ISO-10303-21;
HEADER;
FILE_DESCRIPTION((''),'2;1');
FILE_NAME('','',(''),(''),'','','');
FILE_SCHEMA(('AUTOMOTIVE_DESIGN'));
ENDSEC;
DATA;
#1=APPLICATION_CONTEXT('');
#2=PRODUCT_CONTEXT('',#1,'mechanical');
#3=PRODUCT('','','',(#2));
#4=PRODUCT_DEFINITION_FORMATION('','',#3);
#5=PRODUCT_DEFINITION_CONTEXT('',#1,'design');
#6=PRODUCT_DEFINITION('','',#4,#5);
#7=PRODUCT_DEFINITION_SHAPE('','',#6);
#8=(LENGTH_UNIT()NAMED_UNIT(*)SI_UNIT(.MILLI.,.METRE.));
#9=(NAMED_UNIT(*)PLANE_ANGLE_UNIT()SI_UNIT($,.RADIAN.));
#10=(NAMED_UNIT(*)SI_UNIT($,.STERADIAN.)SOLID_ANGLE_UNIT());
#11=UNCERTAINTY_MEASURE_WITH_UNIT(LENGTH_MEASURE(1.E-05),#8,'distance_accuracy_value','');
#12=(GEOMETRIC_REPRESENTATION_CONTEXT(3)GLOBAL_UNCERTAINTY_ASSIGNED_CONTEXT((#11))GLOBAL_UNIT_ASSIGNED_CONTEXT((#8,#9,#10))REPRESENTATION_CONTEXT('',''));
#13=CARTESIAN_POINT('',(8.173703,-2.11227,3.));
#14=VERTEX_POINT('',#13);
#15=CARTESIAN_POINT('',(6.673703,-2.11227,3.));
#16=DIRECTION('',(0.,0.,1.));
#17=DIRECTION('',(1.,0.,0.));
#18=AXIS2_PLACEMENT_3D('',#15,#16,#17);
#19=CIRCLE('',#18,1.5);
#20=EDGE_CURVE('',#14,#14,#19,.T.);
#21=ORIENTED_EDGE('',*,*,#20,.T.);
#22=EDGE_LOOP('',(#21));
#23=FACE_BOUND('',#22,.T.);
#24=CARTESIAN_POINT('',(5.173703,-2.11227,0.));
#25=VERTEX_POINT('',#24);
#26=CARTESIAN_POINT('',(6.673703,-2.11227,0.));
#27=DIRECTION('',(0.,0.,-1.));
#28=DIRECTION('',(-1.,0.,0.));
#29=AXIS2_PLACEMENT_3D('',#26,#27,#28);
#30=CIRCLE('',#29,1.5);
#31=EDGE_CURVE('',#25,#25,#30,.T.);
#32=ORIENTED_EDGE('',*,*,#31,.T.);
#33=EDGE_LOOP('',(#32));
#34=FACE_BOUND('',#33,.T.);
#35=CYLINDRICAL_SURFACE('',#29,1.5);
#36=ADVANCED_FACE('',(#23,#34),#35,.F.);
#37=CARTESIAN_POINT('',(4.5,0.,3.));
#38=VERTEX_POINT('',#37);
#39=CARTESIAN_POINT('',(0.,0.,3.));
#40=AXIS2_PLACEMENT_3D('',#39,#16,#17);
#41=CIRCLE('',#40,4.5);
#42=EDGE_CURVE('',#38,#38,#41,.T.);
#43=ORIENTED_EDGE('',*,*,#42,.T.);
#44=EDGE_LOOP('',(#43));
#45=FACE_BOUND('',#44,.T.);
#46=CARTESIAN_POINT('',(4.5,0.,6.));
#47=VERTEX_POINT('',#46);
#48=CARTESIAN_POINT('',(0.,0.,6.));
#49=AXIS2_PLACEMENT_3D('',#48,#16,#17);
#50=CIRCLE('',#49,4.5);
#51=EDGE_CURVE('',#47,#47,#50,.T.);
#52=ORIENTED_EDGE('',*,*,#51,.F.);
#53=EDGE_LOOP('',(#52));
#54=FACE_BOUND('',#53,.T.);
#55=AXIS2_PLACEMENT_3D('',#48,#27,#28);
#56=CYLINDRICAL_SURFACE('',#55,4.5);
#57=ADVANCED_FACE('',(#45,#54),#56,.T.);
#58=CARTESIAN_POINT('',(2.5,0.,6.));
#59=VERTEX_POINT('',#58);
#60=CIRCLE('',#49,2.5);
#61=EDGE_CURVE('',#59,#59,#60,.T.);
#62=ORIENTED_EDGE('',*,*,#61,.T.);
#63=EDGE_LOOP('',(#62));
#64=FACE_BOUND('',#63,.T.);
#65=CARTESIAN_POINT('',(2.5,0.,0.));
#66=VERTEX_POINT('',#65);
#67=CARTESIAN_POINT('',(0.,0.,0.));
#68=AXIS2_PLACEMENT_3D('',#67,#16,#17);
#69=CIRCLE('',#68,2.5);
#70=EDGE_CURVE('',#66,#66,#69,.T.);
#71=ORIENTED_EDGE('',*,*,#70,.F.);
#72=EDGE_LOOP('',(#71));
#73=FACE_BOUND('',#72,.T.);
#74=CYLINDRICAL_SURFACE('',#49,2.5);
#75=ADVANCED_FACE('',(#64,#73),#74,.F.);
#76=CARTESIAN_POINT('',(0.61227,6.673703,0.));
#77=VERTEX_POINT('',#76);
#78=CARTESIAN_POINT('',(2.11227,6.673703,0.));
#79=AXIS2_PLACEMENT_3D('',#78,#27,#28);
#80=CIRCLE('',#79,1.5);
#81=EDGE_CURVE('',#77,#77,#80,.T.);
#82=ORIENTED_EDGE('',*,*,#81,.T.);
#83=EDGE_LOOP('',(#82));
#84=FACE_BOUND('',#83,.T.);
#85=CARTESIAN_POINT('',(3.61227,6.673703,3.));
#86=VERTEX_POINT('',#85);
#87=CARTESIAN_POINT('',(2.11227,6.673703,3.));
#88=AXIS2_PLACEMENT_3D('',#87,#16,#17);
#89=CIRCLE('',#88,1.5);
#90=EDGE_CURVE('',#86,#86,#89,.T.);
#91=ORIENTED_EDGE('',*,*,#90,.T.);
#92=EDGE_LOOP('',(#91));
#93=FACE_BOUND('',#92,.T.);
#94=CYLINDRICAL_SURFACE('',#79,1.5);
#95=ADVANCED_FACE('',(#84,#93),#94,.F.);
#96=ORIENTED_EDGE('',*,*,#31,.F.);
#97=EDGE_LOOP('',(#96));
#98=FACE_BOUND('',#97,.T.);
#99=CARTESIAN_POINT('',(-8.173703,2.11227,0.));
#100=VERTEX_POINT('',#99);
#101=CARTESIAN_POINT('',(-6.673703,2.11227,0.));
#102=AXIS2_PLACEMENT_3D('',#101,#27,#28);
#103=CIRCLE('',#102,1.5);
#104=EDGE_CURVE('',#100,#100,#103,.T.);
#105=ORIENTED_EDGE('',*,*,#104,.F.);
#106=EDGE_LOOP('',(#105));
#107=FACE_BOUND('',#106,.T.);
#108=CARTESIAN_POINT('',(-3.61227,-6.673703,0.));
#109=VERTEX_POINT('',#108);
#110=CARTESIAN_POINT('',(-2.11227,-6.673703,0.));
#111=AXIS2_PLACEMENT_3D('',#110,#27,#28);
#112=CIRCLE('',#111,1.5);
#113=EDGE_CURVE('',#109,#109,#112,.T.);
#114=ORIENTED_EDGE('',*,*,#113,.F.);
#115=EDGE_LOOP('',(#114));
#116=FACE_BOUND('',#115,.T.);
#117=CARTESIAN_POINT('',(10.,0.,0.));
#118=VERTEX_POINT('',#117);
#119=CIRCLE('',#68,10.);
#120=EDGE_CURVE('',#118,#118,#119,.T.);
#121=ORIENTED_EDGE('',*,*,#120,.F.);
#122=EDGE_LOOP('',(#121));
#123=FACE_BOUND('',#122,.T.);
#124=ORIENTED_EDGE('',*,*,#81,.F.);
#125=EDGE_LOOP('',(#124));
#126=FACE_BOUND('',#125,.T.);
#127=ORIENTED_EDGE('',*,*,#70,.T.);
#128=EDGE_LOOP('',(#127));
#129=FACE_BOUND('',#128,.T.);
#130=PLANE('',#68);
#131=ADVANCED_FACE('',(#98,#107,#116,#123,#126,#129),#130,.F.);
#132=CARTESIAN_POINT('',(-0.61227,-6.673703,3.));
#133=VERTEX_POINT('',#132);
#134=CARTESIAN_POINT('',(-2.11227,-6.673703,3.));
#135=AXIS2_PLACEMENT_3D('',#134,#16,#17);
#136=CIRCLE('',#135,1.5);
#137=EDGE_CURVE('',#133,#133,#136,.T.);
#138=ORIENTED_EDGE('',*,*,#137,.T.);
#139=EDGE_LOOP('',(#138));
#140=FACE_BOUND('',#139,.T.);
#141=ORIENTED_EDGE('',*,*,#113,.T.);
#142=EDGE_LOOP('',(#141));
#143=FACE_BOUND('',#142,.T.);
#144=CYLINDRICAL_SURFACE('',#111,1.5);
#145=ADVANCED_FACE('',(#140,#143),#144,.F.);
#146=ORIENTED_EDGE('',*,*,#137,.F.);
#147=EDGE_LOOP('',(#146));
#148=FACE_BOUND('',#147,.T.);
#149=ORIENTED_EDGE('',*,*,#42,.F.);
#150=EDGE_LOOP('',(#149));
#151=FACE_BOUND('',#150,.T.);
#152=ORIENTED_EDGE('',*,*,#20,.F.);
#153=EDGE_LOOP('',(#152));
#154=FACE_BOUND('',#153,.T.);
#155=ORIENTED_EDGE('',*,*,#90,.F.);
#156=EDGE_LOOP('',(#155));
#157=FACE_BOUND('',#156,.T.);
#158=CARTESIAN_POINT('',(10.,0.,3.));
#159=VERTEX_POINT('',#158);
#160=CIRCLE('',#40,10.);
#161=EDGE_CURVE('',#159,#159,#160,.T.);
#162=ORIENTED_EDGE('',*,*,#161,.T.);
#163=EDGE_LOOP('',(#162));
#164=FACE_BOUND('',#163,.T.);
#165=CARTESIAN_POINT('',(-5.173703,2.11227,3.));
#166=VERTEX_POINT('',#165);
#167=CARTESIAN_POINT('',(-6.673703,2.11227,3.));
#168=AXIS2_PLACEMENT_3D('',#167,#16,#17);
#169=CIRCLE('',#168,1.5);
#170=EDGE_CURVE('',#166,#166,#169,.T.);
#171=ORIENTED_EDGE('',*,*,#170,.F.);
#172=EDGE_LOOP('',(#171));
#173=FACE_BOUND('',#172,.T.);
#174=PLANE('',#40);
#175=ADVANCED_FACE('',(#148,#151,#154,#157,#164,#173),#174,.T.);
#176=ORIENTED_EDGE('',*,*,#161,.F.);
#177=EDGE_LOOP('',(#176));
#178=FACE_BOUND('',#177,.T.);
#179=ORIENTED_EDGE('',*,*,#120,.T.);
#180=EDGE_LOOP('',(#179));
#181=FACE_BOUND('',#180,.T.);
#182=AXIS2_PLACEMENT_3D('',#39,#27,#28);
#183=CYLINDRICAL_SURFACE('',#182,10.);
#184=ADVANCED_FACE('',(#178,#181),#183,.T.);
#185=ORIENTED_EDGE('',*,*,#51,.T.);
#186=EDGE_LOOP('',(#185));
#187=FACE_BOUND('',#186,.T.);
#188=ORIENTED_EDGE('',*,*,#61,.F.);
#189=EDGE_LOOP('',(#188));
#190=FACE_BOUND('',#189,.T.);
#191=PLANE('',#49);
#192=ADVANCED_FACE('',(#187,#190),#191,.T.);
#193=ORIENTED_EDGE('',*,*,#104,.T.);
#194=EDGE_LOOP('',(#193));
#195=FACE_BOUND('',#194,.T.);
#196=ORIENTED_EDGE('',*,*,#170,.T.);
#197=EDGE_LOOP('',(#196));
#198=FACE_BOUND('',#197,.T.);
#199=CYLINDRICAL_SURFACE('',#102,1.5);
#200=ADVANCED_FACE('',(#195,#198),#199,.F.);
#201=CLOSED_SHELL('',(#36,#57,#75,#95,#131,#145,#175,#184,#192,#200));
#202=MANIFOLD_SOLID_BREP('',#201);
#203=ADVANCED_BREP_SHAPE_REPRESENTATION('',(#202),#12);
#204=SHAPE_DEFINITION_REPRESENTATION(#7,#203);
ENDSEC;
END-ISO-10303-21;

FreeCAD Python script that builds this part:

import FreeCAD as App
import Part
import Sketcher
Q = App.Units.Quantity

doc = App.newDocument("Part")
params = doc.addObject("Spreadsheet::Sheet", "Params")
for row, (alias, value) in enumerate([
    ("sketch1_diameter", "20 mm"),
    ("pad1_length", "3 mm"),
    ("sketch2_diameter", "9 mm"),
    ("pad2_length", "3 mm"),
    ("sketch3_diameter", "3 mm"),
    ("hole_diameter", "3 mm"),
    ("sketch4_diameter", "5 mm"),
    ("hole2_diameter", "5 mm"),
], start=1):
    params.set(f"A{row}", alias)
    params.set(f"B{row}", "=" + value)
    params.setAlias(f"B{row}", alias)

body = doc.addObject("PartDesign::Body", "Body")

# Sketch on XY plane
sketch1 = body.newObject("Sketcher::SketchObject", "Sketch")
sketch1.AttachmentSupport = (doc.getObject("XY_Plane"), [""])
sketch1.MapMode = "FlatFace"
sketch1.addGeometry(Part.Circle(App.Vector(0, 0, 0), App.Vector(0, 0, 1), 10), False)
sketch1.addConstraint([
    Sketcher.Constraint("Coincident", 0, 3, -1, 1),
    Sketcher.Constraint("Diameter", 0, Q("20 mm")),
])
sketch1.setExpression("Constraints[1]", "Params.sketch1_diameter")
pad1 = body.newObject("PartDesign::Pad", "Pad")
pad1.Profile = sketch1
pad1.setExpression("Length", "Params.pad1_length")

# Sketch on XY plane
sketch2 = body.newObject("Sketcher::SketchObject", "Sketch001")
sketch2.AttachmentSupport = (doc.getObject("XY_Plane"), [""])
sketch2.MapMode = "FlatFace"
sketch2.AttachmentOffset = App.Placement(App.Vector(0, 0, 3), App.Rotation())
sketch2.addGeometry(Part.Circle(App.Vector(0, 0, 0), App.Vector(0, 0, 1), 4.5), False)
sketch2.addConstraint([
    Sketcher.Constraint("Coincident", 0, 3, -1, 1),
    Sketcher.Constraint("Diameter", 0, Q("9 mm")),
])
sketch2.setExpression("Constraints[1]", "Params.sketch2_diameter")
pad2 = body.newObject("PartDesign::Pad", "Pad001")
pad2.Profile = sketch2
pad2.setExpression("Length", "Params.pad2_length")

# Sketch on XY plane
sketch3 = body.newObject("Sketcher::SketchObject", "Sketch002")
sketch3.AttachmentSupport = (doc.getObject("XY_Plane"), [""])
sketch3.MapMode = "FlatFace"
sketch3.addGeometry([
    Part.Circle(App.Vector(-6.7, 2.1, 0), App.Vector(0, 0, 1), 1.5),
    Part.Circle(App.Vector(-2.1, -6.7, 0), App.Vector(0, 0, 1), 1.5),
    Part.Circle(App.Vector(6.7, -2.1, 0), App.Vector(0, 0, 1), 1.5),
    Part.Circle(App.Vector(2.1, 6.7, 0), App.Vector(0, 0, 1), 1.5),
], False)
sketch3.addConstraint([
    Sketcher.Constraint("Equal", 0, 1),
    Sketcher.Constraint("Equal", 1, 2),
    Sketcher.Constraint("Equal", 2, 3),
    Sketcher.Constraint("Symmetric", 0, 3, 2, 3, -1, 1),
    Sketcher.Constraint("Symmetric", 1, 3, 3, 3, -1, 1),
    Sketcher.Constraint("Diameter", 0, Q("3 mm")),
    Sketcher.Constraint("DistanceY", -1, 1, 0, 3, Q("2.11227 mm")),
    Sketcher.Constraint("DistanceX", 1, 3, -1, 1, Q("2.11227 mm")),
    Sketcher.Constraint("DistanceX", 0, 3, -1, 1, Q("6.673703 mm")),
    Sketcher.Constraint("DistanceY", 1, 3, -1, 1, Q("6.673703 mm")),
])
sketch3.setExpression("Constraints[5]", "Params.sketch3_diameter")
doc.recompute()
hole = body.newObject("PartDesign::Hole", "Hole")
hole.Profile = sketch3
hole.ThreadType = "None"
hole.setExpression("Diameter", "Params.hole_diameter")
hole.DepthType = "ThroughAll"
hole.Reversed = True

# Sketch on XY plane
sketch4 = body.newObject("Sketcher::SketchObject", "Sketch003")
sketch4.AttachmentSupport = (doc.getObject("XY_Plane"), [""])
sketch4.MapMode = "FlatFace"
sketch4.AttachmentOffset = App.Placement(App.Vector(0, 0, 6), App.Rotation())
sketch4.addGeometry(Part.Circle(App.Vector(0, 0, 0), App.Vector(0, 0, 1), 2.5), False)
sketch4.addConstraint([
    Sketcher.Constraint("Coincident", 0, 3, -1, 1),
    Sketcher.Constraint("Diameter", 0, Q("5 mm")),
])
sketch4.setExpression("Constraints[1]", "Params.sketch4_diameter")
doc.recompute()
hole2 = body.newObject("PartDesign::Hole", "Hole001")
hole2.Profile = sketch4
hole2.ThreadType = "None"
hole2.setExpression("Diameter", "Params.hole2_diameter")
hole2.DepthType = "ThroughAll"

doc.recompute()
